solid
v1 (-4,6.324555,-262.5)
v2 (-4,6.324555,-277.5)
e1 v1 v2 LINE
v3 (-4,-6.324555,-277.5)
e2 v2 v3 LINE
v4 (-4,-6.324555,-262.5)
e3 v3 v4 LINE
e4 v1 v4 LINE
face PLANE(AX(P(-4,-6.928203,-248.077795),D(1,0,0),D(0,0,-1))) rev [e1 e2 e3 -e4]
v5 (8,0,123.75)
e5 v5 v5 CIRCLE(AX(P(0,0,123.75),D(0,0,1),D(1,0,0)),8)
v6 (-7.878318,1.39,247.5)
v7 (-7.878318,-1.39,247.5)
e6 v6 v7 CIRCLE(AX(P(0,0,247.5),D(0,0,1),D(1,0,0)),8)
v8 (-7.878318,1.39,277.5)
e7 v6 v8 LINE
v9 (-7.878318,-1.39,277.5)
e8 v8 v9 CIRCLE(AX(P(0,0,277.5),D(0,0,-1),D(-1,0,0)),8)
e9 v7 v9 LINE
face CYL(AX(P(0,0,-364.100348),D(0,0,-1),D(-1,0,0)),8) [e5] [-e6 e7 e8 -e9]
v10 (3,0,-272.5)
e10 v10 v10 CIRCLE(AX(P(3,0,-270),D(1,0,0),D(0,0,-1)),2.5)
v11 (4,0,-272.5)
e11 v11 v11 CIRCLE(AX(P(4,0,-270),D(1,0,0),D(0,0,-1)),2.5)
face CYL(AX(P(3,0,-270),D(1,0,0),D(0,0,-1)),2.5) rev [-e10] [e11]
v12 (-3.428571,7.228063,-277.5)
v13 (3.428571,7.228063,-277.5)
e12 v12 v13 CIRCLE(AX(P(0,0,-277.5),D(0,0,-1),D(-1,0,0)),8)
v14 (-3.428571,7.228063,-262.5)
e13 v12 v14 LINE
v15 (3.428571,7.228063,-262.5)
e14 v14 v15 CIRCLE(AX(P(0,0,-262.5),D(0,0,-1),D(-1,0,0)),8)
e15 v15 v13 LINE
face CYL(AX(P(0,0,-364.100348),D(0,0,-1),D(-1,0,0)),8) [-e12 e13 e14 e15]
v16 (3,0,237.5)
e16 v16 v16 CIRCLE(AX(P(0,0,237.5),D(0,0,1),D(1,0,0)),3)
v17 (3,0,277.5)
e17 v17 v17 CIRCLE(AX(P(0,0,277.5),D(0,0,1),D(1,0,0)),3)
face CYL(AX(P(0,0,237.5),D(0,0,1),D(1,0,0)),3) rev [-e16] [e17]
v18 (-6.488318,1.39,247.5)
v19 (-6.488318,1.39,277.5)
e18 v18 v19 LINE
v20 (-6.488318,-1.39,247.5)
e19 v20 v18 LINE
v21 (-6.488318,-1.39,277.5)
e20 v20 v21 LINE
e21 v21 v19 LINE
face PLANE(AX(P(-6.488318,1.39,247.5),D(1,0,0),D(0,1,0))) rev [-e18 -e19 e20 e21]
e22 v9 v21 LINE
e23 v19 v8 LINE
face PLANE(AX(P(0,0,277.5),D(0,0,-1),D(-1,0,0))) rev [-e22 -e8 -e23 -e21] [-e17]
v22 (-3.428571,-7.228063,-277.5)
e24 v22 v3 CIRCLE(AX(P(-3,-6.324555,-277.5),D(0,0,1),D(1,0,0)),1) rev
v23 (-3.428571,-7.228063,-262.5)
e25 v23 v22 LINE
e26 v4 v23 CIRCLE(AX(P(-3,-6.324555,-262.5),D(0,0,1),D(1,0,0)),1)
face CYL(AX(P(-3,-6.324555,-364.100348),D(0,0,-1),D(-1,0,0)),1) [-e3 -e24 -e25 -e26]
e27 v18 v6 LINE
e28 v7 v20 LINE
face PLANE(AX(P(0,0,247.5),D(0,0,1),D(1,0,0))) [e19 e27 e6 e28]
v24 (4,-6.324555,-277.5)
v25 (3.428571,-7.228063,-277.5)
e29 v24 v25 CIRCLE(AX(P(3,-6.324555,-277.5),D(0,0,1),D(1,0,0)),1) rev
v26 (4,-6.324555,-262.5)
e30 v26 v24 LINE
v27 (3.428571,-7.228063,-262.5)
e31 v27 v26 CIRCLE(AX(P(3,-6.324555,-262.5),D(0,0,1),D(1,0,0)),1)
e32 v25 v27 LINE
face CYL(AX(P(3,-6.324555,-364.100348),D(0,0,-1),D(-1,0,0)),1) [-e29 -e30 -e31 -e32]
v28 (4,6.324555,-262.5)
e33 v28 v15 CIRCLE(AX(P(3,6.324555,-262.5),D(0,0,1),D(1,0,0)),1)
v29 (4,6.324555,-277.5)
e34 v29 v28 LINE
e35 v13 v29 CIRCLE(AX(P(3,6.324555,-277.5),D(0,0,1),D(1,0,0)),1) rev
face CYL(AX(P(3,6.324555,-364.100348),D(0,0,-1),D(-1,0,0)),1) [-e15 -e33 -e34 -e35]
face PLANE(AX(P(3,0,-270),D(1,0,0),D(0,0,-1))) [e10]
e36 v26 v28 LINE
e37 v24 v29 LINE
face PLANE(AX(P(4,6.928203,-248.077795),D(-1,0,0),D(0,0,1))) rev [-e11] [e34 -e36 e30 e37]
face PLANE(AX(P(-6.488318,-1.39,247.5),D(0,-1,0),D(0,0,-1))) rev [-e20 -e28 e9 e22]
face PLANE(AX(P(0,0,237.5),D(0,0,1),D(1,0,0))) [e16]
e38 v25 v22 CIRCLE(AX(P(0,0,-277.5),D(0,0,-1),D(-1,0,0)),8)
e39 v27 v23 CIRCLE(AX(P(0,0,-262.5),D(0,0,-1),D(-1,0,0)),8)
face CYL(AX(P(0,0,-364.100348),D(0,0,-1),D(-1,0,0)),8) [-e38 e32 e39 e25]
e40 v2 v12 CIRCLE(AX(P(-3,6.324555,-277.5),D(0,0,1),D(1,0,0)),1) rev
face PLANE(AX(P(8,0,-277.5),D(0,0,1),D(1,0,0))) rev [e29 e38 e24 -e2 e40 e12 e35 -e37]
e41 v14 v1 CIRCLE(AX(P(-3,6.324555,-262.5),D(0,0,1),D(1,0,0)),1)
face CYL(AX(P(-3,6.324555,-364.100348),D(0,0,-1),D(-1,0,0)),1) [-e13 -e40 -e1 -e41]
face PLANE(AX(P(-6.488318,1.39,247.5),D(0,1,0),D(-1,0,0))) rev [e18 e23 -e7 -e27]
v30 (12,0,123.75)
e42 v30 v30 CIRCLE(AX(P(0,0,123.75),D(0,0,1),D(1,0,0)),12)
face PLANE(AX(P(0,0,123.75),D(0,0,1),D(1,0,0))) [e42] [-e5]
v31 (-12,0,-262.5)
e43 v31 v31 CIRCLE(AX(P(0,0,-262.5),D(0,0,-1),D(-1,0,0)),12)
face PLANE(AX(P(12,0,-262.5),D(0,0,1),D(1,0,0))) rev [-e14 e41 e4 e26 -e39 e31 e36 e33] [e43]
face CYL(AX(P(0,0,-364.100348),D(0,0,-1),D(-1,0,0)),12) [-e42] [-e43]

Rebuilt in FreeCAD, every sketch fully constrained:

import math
import FreeCAD as App
import Part
import Sketcher
Q = App.Units.Quantity


def edges_at(feature, points):
    """Names of the edges that pass closest to the given points."""
    edges = feature.Shape.Edges
    near = lambda p: min(range(len(edges)), key=lambda i: edges[i].distToShape(Part.Vertex(*p))[0])
    return sorted({f"Edge{near(p) + 1}" for p in points})

doc = App.newDocument("Part")
body = doc.addObject("PartDesign::Body", "Body")

sketch1 = body.newObject("Sketcher::SketchObject", "Sketch")
sketch1.AttachmentSupport = (doc.getObject("XZ_Plane"), [""])
sketch1.MapMode = "FlatFace"
sketch1.addGeometry([
    Part.LineSegment(App.Vector(0, 277.5, 0), App.Vector(8, 277.5, 0)),
    Part.LineSegment(App.Vector(8, 277.5, 0), App.Vector(8, 262.5, 0)),
    Part.LineSegment(App.Vector(8, 262.5, 0), App.Vector(12, 262.5, 0)),
    Part.LineSegment(App.Vector(12, 262.5, 0), App.Vector(12, -262.5, 0)),
    Part.LineSegment(App.Vector(12, -262.5, 0), App.Vector(8, -262.5, 0)),
    Part.LineSegment(App.Vector(8, -262.5, 0), App.Vector(8, -277.5, 0)),
    Part.LineSegment(App.Vector(8, -277.5, 0), App.Vector(0, -277.5, 0)),
    Part.LineSegment(App.Vector(0, -277.5, 0), App.Vector(0, 277.5, 0)),
], False)
sketch1.addConstraint([
    Sketcher.Constraint("Coincident", 0, 2, 1, 1),
    Sketcher.Constraint("Coincident", 1, 2, 2, 1),
    Sketcher.Constraint("Coincident", 2, 2, 3, 1),
    Sketcher.Constraint("Coincident", 3, 2, 4, 1),
    Sketcher.Constraint("Coincident", 4, 2, 5, 1),
    Sketcher.Constraint("Coincident", 5, 2, 6, 1),
    Sketcher.Constraint("Coincident", 6, 2, 7, 1),
    Sketcher.Constraint("Coincident", 7, 2, 0, 1),
    Sketcher.Constraint("Horizontal", 0),
    Sketcher.Constraint("Vertical", 1),
    Sketcher.Constraint("Horizontal", 2),
    Sketcher.Constraint("Vertical", 3),
    Sketcher.Constraint("Horizontal", 4),
    Sketcher.Constraint("Vertical", 5),
    Sketcher.Constraint("Horizontal", 6),
    Sketcher.Constraint("Vertical", 7),
    Sketcher.Constraint("Symmetric", 6, 2, 7, 2, -1, 1),
    Sketcher.Constraint("Symmetric", 1, 2, 4, 2, -1),
    Sketcher.Constraint("DistanceX", 0, 1, 0, 2, Q("8 mm")),
    Sketcher.Constraint("DistanceX", 2, 1, 2, 2, Q("4 mm")),
    Sketcher.Constraint("DistanceY", 1, 2, 1, 1, Q("15 mm")),
    Sketcher.Constraint("DistanceY", 3, 2, 3, 1, Q("525 mm")),
])
revolution = body.newObject("PartDesign::Revolution", "Revolution")
revolution.Profile = sketch1
revolution.ReferenceAxis = (sketch1, ["V_Axis"])
revolution.Angle = 360

sketch2 = body.newObject("Sketcher::SketchObject", "Sketch001")
sketch2.AttachmentSupport = (doc.getObject("XY_Plane"), [""])
sketch2.MapMode = "FlatFace"
sketch2.AttachmentOffset = App.Placement(App.Vector(0, 0, 247.5), App.Rotation())
sketch2.addGeometry([
    Part.LineSegment(App.Vector(-6.488318, 1.39, 0), App.Vector(-7.878318, 1.39, 0)),
    Part.ArcOfCircle(Part.Circle(App.Vector(0, 0, 0), App.Vector(0, 0, 1), 8), math.radians(169.994076), math.radians(190.005924)),
    Part.LineSegment(App.Vector(-7.878318, -1.39, 0), App.Vector(-6.488318, -1.39, 0)),
    Part.LineSegment(App.Vector(-6.488318, -1.39, 0), App.Vector(-6.488318, 1.39, 0)),
], False)
sketch2.addConstraint([
    Sketcher.Constraint("Coincident", 0, 2, 1, 1),
    Sketcher.Constraint("Coincident", 1, 2, 2, 1),
    Sketcher.Constraint("Coincident", 2, 2, 3, 1),
    Sketcher.Constraint("Coincident", 3, 2, 0, 1),
    Sketcher.Constraint("Horizontal", 0),
    Sketcher.Constraint("Horizontal", 2),
    Sketcher.Constraint("Vertical", 3),
    Sketcher.Constraint("Coincident", 1, 3, -1, 1),
    Sketcher.Constraint("Vertical", 0, 2, 1, 2),
    Sketcher.Constraint("Radius", 1, Q("8 mm")),
    Sketcher.Constraint("DistanceX", 0, 2, 0, 1, Q("1.39 mm")),
    Sketcher.Constraint("DistanceY", 3, 1, 3, 2, Q("2.78 mm")),
])
pocket1 = body.newObject("PartDesign::Pocket", "Pocket")
pocket1.Profile = sketch2
pocket1.Length = 30
pocket1.Reversed = True

sketch3 = body.newObject("Sketcher::SketchObject", "Sketch002")
sketch3.AttachmentSupport = (doc.getObject("XY_Plane"), [""])
sketch3.MapMode = "FlatFace"
sketch3.AttachmentOffset = App.Placement(App.Vector(0, 0, 277.5), App.Rotation())
sketch3.addGeometry(Part.Circle(App.Vector(0, 0, 0), App.Vector(0, 0, 1), 3), False)
sketch3.addConstraint([
    Sketcher.Constraint("Coincident", 0, 3, -1, 1),
    Sketcher.Constraint("Diameter", 0, Q("6 mm")),
])
pocket2 = body.newObject("PartDesign::Pocket", "Pocket001")
pocket2.Profile = sketch3
pocket2.Length = 40

sketch4 = body.newObject("Sketcher::SketchObject", "Sketch003")
sketch4.AttachmentSupport = (doc.getObject("XY_Plane"), [""])
sketch4.MapMode = "FlatFace"
sketch4.AttachmentOffset = App.Placement(App.Vector(0, 0, 123.75), App.Rotation())
sketch4.addGeometry([
    Part.Circle(App.Vector(0, 0, 0), App.Vector(0, 0, 1), 12),
    Part.Circle(App.Vector(0, 0, 0), App.Vector(0, 0, 1), 8),
], False)
sketch4.addConstraint([
    Sketcher.Constraint("Coincident", 0, 3, -1, 1),
    Sketcher.Constraint("Coincident", 1, 3, -1, 1),
    Sketcher.Constraint("Diameter", 0, Q("24 mm")),
    Sketcher.Constraint("Diameter", 1, Q("16 mm")),
])
pocket3 = body.newObject("PartDesign::Pocket", "Pocket002")
pocket3.Profile = sketch4
pocket3.Length = 138.75
pocket3.Reversed = True

sketch5 = body.newObject("Sketcher::SketchObject", "Sketch004")
sketch5.AttachmentSupport = (doc.getObject("XY_Plane"), [""])
sketch5.MapMode = "FlatFace"
sketch5.AttachmentOffset = App.Placement(App.Vector(0, 0, -277.5), App.Rotation())
sketch5.addGeometry([
    Part.LineSegment(App.Vector(4, -6.928203, 0), App.Vector(4, 6.928203, 0)),
    Part.ArcOfCircle(Part.Circle(App.Vector(0, 0, 0), App.Vector(0, 0, 1), 8), math.radians(-60), math.radians(60)),
    Part.LineSegment(App.Vector(-4, 6.928203, 0), App.Vector(-4, -6.928203, 0)),
    Part.ArcOfCircle(Part.Circle(App.Vector(0, 0, 0), App.Vector(0, 0, 1), 8), math.radians(120), math.radians(240)),
], False)
sketch5.addConstraint([
    Sketcher.Constraint("Coincident", 0, 1, 1, 1),
    Sketcher.Constraint("Coincident", 1, 2, 0, 2),
    Sketcher.Constraint("Coincident", 2, 1, 3, 1),
    Sketcher.Constraint("Coincident", 3, 2, 2, 2),
    Sketcher.Constraint("Vertical", 0),
    Sketcher.Constraint("Vertical", 2),
    Sketcher.Constraint("Coincident", 1, 3, -1, 1),
    Sketcher.Constraint("Coincident", 3, 3, -1, 1),
    Sketcher.Constraint("Equal", 1, 3),
    Sketcher.Constraint("Horizontal", 1, 2, 2, 1),
    Sketcher.Constraint("Radius", 1, Q("8 mm")),
    Sketcher.Constraint("DistanceX", -1, 1, 0, 1, Q("4 mm")),
])
pocket4 = body.newObject("PartDesign::Pocket", "Pocket003")
pocket4.Profile = sketch5
pocket4.Length = 15
pocket4.Reversed = True
doc.recompute()

fillet = body.newObject("PartDesign::Fillet", "Fillet")
fillet.Base = (pocket4, edges_at(pocket4, [
    (4, 6.928, -270),
    (4, -6.928, -270),
    (-4, -6.928, -270),
    (-4, 6.928, -270),
]))
fillet.Radius = 1

sketch6 = body.newObject("Sketcher::SketchObject", "Sketch005")
sketch6.AttachmentSupport = (doc.getObject("YZ_Plane"), [""])
sketch6.MapMode = "FlatFace"
sketch6.AttachmentOffset = App.Placement(App.Vector(0, 0, 4), App.Rotation())
sketch6.addGeometry(Part.Circle(App.Vector(0, -270, 0), App.Vector(0, 0, 1), 2.5), False)
sketch6.addConstraint([
    Sketcher.Constraint("PointOnObject", 0, 3, -2),
    Sketcher.Constraint("Diameter", 0, Q("5 mm")),
    Sketcher.Constraint("DistanceY", 0, 3, -1, 1, Q("270 mm")),
])
pocket5 = body.newObject("PartDesign::Pocket", "Pocket004")
pocket5.Profile = sketch6
pocket5.Length = 1

doc.recompute()
